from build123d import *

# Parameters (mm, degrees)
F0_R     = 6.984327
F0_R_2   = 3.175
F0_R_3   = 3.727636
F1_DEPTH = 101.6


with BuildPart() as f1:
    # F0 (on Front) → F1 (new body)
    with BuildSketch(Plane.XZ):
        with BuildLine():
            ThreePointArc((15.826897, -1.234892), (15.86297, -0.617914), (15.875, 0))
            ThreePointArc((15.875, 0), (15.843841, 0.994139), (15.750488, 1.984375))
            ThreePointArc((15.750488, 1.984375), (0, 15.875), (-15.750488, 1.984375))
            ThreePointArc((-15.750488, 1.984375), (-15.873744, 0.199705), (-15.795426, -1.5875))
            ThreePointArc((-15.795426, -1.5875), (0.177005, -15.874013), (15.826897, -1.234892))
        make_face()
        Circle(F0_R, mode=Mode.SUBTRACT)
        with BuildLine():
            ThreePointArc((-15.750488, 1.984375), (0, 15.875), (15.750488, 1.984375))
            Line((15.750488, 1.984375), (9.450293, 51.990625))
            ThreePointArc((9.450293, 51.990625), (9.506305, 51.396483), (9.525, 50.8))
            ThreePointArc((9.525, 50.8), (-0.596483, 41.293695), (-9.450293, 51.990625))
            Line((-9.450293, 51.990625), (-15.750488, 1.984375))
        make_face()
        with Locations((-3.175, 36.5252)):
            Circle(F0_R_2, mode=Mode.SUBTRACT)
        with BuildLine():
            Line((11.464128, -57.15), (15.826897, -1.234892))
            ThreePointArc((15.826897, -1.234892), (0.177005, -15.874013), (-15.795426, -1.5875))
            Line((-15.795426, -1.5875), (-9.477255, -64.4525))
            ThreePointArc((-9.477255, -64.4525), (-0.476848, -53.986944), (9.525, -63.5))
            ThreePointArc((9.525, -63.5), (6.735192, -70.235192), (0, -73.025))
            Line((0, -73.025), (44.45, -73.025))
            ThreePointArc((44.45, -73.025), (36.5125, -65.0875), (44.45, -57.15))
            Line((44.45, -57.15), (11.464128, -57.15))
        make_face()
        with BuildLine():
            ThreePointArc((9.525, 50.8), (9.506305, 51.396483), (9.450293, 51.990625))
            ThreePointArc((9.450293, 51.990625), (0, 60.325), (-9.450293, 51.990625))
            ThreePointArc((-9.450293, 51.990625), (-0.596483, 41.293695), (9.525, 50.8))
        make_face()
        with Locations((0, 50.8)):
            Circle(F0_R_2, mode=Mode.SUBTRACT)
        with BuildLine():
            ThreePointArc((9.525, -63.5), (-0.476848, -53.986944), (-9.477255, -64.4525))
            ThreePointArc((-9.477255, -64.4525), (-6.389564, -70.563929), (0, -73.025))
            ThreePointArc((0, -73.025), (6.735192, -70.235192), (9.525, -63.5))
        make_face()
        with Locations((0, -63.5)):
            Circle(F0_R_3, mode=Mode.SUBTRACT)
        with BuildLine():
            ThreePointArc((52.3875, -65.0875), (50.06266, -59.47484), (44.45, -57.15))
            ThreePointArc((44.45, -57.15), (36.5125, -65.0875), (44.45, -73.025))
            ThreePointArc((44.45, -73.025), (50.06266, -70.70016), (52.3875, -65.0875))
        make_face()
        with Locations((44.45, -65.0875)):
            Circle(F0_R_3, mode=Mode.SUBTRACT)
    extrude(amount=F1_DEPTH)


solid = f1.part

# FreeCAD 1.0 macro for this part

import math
import FreeCAD as App
import Part
import Sketcher

V = App.Vector
Q = App.Units.Quantity

doc = App.newDocument("Part")
body = doc.addObject("PartDesign::Body", "Body")

sketch1 = body.newObject("Sketcher::SketchObject", "Sketch")
sketch1.AttachmentSupport = (doc.getObject("XZ_Plane"), [""])
sketch1.MapMode = "FlatFace"
sketch1.addGeometry([
    Part.ArcOfCircle(Part.Circle(V(0.000373, -0.000015, 0), V(0, 0, 1), 15.874627), math.radians(-4.461508), math.radians(0.000055)),
    Part.ArcOfCircle(Part.Circle(V(-0.000171, -0.000013, 0), V(0, 0, 1), 15.875171), math.radians(0.000047), math.radians(7.180725)),
    Part.LineSegment(V(15.750488, 1.984375, 0), V(9.450293, 51.990625, 0)),
    Part.ArcOfCircle(Part.Circle(V(0, 50.8, 0), V(0, 0, 1), 9.525), math.radians(7.180756), math.radians(172.819244)),
    Part.LineSegment(V(-9.450293, 51.990625, 0), V(-15.750488, 1.984375, 0)),
    Part.ArcOfCircle(Part.Circle(V(-0.000015, -0.000003, 0), V(0, 0, 1), 15.874985), math.radians(172.819227), math.radians(185.739165)),
    Part.LineSegment(V(-15.795426, -1.5875, 0), V(-9.477255, -64.4525, 0)),
    Part.ArcOfCircle(Part.Circle(V(0, -63.5, 0), V(0, 0, 1), 9.525), math.radians(-174.26083), math.radians(-90.000002)),
    Part.LineSegment(V(0, -73.025, 0), V(44.45, -73.025, 0)),
    Part.ArcOfCircle(Part.Circle(V(44.45, -65.0875, 0), V(0, 0, 1), 7.9375), math.radians(-89.999998), math.radians(-0.000002)),
    Part.ArcOfCircle(Part.Circle(V(44.45, -65.0875, 0), V(0, 0, 1), 7.9375), math.radians(0.000002), math.radians(89.999998)),
    Part.LineSegment(V(44.45, -57.15, 0), V(11.464128, -57.15, 0)),
    Part.LineSegment(V(11.464128, -57.15, 0), V(15.826897, -1.234892, 0)),
    Part.Circle(V(0, -63.5, 0), V(0, 0, 1), 3.727636),
    Part.Circle(V(44.45, -65.0875, 0), V(0, 0, 1), 3.727636),
    Part.Circle(V(0, 0, 0), V(0, 0, 1), 6.984327),
    Part.Circle(V(-3.175, 36.5252, 0), V(0, 0, 1), 3.175),
    Part.Circle(V(0, 50.8, 0), V(0, 0, 1), 3.175),
], False)
sketch1.addConstraint([
    Sketcher.Constraint("Coincident", 0, 2, 1, 1),
    Sketcher.Constraint("Coincident", 1, 2, 2, 1),
    Sketcher.Constraint("Coincident", 2, 2, 3, 1),
    Sketcher.Constraint("Coincident", 3, 2, 4, 1),
    Sketcher.Constraint("Coincident", 4, 2, 5, 1),
    Sketcher.Constraint("Coincident", 5, 2, 6, 1),
    Sketcher.Constraint("Coincident", 6, 2, 7, 1),
    Sketcher.Constraint("Coincident", 7, 2, 8, 1),
    Sketcher.Constraint("Coincident", 8, 2, 9, 1),
    Sketcher.Constraint("Coincident", 9, 2, 10, 1),
    Sketcher.Constraint("Coincident", 10, 2, 11, 1),
    Sketcher.Constraint("Coincident", 11, 2, 12, 1),
    Sketcher.Constraint("Coincident", 12, 2, 0, 1),
    Sketcher.Constraint("Horizontal", 8),
    Sketcher.Constraint("Horizontal", 11),
    Sketcher.Constraint("Coincident", 15, 3, -1, 1),
    Sketcher.Constraint("Coincident", 10, 3, 9, 3),
    Sketcher.Constraint("Coincident", 13, 3, 7, 3),
    Sketcher.Constraint("Coincident", 14, 3, 9, 3),
    Sketcher.Constraint("Coincident", 17, 3, 3, 3),
    Sketcher.Constraint("PointOnObject", 3, 3, -2),
    Sketcher.Constraint("PointOnObject", 7, 3, -2),
    Sketcher.Constraint("PointOnObject", 0, 2, -1),
    Sketcher.Constraint("PointOnObject", 7, 2, -2),
    Sketcher.Constraint("Diameter", 16, Q("0.25 in")),
    Sketcher.Constraint("Diameter", 17, Q("0.25 in")),
    Sketcher.Constraint("DistanceY", -1, 1, 3, 3, Q("2 in")),
    Sketcher.Constraint("Radius", 3, Q("0.375 in")),
    Sketcher.Constraint("Radius", 7, Q("0.375 in")),
    Sketcher.Constraint("Radius", 9, Q("0.3125 in")),
    Sketcher.Constraint("DistanceY", 5, 3, 3, 3, Q("2.0000001 in")),
    Sketcher.Constraint("DistanceX", 8, 1, 8, 2, Q("1.75 in")),
    Sketcher.Constraint("DistanceY", 7, 3, -1, 1, Q("2.5 in")),
    Sketcher.Constraint("DistanceX", -1, 1, 9, 3, Q("1.75 in")),
    Sketcher.Constraint("DistanceX", -1, 1, 10, 2, Q("1.75 in")),
    Sketcher.Constraint("DistanceX", 16, 3, 0, 2, Q("0.75 in")),
    Sketcher.Constraint("DistanceX", 16, 3, -1, 1, Q("0.125 in")),
    Sketcher.Constraint("DistanceY", -1, 1, 16, 3, Q("1.438 in")),
    Sketcher.Constraint("DistanceY", -1, 1, 1, 2, Q("0.078125 in")),
    Sketcher.Constraint("DistanceY", -1, 1, 2, 2, Q("2.046875 in")),
    Sketcher.Constraint("DistanceY", -1, 1, 3, 2, Q("2.046875 in")),
    Sketcher.Constraint("DistanceY", -1, 1, 4, 2, Q("0.078125 in")),
    Sketcher.Constraint("DistanceY", 5, 2, -1, 1, Q("0.0625 in")),
    Sketcher.Constraint("DistanceY", 9, 2, -1, 1, Q("2.5625 in")),
    Sketcher.Constraint("Radius", 1, 15.875171),
    Sketcher.Constraint("DistanceY", 9, 3, 6, 2, Q("0.025 in")),
    Sketcher.Constraint("Diameter", 13, 7.455272),
    Sketcher.Constraint("Diameter", 14, 7.455272),
    Sketcher.Constraint("Diameter", 15, 13.968654),
    Sketcher.Constraint("Radius", 0, 15.874627),
    Sketcher.Constraint("Radius", 5, 15.874985),
    Sketcher.Constraint("DistanceX", 5, 2, 0, 3, 15.795799),
    Sketcher.Constraint("Distance", 12, 56.085052),
    Sketcher.Constraint("DistanceX", 11, 2, 11, 1, 32.985872),
    Sketcher.Constraint("DistanceX", -1, 1, 1, 2, 15.750488),
    Sketcher.Constraint("DistanceY", 0, 3, 1, 2, 1.98439),
])
pad1 = body.newObject("PartDesign::Pad", "Pad")
pad1.Profile = sketch1
pad1.Length = Q("4 in")

doc.recompute()
